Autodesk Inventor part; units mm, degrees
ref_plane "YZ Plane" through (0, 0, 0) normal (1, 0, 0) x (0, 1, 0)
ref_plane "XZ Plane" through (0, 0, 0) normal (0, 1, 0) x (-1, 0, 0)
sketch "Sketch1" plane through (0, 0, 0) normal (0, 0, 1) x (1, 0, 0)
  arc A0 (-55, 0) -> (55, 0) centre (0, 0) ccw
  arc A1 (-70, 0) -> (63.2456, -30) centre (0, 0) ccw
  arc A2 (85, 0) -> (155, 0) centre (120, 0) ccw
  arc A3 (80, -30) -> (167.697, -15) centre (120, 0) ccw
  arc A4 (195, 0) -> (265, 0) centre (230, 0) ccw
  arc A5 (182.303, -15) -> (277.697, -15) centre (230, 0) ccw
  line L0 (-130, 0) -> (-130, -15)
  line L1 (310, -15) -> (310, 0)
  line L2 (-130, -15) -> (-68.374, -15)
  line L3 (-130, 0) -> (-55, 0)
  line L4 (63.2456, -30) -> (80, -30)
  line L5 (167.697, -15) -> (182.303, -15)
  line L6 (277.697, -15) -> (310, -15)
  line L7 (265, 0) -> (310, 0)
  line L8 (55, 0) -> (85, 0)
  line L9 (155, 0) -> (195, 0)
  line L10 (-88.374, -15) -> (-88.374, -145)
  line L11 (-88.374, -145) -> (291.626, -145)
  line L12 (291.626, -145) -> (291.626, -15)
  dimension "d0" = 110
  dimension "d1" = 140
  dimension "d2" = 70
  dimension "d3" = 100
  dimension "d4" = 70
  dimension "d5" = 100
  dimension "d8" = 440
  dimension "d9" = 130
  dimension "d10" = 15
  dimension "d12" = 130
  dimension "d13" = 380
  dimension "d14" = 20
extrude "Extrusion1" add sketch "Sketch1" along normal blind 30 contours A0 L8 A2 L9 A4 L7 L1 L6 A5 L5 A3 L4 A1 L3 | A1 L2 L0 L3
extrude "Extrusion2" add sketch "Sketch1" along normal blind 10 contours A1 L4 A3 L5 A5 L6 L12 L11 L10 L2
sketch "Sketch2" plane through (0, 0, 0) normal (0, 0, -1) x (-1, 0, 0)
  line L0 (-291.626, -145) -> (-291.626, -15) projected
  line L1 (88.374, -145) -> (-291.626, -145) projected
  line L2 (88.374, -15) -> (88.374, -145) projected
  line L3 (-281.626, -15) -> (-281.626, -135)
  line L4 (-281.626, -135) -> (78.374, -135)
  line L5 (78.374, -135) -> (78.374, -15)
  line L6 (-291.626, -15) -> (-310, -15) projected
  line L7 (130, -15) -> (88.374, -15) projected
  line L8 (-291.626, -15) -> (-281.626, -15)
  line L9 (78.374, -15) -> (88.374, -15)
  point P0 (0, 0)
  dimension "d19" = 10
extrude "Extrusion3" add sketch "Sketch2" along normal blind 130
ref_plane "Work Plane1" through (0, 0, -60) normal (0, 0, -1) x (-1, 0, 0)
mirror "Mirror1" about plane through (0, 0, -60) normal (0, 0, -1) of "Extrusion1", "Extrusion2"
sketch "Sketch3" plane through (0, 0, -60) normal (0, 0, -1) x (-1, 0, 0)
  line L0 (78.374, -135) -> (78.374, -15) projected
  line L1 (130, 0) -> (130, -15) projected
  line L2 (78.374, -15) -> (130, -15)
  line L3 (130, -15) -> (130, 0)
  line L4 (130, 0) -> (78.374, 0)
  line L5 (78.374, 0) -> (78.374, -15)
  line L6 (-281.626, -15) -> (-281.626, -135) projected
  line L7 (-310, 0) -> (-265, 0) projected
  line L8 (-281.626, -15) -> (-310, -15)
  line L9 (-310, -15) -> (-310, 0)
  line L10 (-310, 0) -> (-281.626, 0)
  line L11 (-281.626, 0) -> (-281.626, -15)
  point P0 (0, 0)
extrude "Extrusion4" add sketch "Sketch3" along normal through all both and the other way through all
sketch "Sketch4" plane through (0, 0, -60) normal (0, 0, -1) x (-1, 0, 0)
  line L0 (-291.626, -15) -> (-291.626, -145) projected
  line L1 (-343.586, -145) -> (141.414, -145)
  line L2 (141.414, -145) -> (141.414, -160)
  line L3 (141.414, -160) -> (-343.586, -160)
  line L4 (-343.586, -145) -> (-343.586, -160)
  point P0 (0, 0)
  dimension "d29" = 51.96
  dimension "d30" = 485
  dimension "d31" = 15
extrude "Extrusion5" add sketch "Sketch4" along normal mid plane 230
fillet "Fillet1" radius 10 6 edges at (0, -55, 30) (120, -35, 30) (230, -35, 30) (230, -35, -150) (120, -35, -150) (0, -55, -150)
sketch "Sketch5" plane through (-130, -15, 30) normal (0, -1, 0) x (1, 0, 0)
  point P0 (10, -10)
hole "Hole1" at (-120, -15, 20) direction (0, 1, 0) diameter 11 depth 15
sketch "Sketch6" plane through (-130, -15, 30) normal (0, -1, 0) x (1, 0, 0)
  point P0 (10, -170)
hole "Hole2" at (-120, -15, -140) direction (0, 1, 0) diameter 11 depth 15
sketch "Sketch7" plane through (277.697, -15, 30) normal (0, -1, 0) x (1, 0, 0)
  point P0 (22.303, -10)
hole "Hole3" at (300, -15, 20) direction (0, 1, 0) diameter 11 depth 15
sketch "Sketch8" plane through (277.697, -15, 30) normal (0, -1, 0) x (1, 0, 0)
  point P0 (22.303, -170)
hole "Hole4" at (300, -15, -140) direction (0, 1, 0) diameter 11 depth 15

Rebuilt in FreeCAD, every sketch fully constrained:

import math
import FreeCAD as App
import Part
import Sketcher

V = App.Vector


def edges_at(feature, points):
    """Names of the edges that pass closest to the given points."""
    edges = feature.Shape.Edges
    near = lambda p: min(range(len(edges)), key=lambda i: edges[i].distToShape(Part.Vertex(*p))[0])
    return sorted({f"Edge{near(p) + 1}" for p in points})


def add_polygon(sketch, points):
    """Adds a closed chain of lines whose ends are joined by coincident constraints."""
    first, n = sketch.GeometryCount, len(points)
    for a, b in zip(points, points[1:] + points[:1]):
        sketch.addGeometry(Part.LineSegment(App.Vector(*a, 0), App.Vector(*b, 0)), False)
    for i in range(n):
        sketch.addConstraint(Sketcher.Constraint("Coincident", first + i, 2, first + (i + 1) % n, 1))

doc = App.newDocument("Part")
body = doc.addObject("PartDesign::Body", "Body")

# Sketch on XY plane
sketch1 = doc.addObject("Sketcher::SketchObject", "Sketch")
body.addObject(sketch1)
sketch1.AttachmentSupport = (doc.XY_Plane, [""])
sketch1.MapMode = "FlatFace"
sketch1.addGeometry(Part.ArcOfCircle(Part.Circle(V(0, 0, 0), V(0, 0, 1), 55), math.radians(180), math.radians(360)), False)
sketch1.addGeometry(Part.LineSegment(V(-55, 0, 0), V(-130, 0, 0)), False)
sketch1.addGeometry(Part.LineSegment(V(-130, 0, 0), V(-130, -15, 0)), False)
sketch1.addGeometry(Part.LineSegment(V(-130, -15, 0), V(-68, -15, 0)), False)
sketch1.addGeometry(Part.ArcOfCircle(Part.Circle(V(0, 0, 0), V(0, 0, 1), 70), math.radians(-168), math.radians(-25)), False)
sketch1.addGeometry(Part.LineSegment(V(63, -30, 0), V(80, -30, 0)), False)
sketch1.addGeometry(Part.ArcOfCircle(Part.Circle(V(120, 0, 0), V(0, 0, 1), 50), math.radians(-143), math.radians(-17)), False)
sketch1.addGeometry(Part.LineSegment(V(168, -15, 0), V(182, -15, 0)), False)
sketch1.addGeometry(Part.ArcOfCircle(Part.Circle(V(230, 0, 0), V(0, 0, 1), 50), math.radians(-163), math.radians(-17)), False)
sketch1.addGeometry(Part.LineSegment(V(278, -15, 0), V(310, -15, 0)), False)
sketch1.addGeometry(Part.LineSegment(V(310, -15, 0), V(310, 0, 0)), False)
sketch1.addGeometry(Part.LineSegment(V(310, 0, 0), V(265, 0, 0)), False)
sketch1.addGeometry(Part.ArcOfCircle(Part.Circle(V(230, 0, 0), V(0, 0, 1), 35), math.radians(180), math.radians(360)), False)
sketch1.addGeometry(Part.LineSegment(V(195, 0, 0), V(155, 0, 0)), False)
sketch1.addGeometry(Part.ArcOfCircle(Part.Circle(V(120, 0, 0), V(0, 0, 1), 35), math.radians(180), math.radians(360)), False)
sketch1.addGeometry(Part.LineSegment(V(85, 0, 0), V(55, 0, 0)), False)
sketch1.addConstraint(Sketcher.Constraint("Coincident", 0, 1, 1, 1))
sketch1.addConstraint(Sketcher.Constraint("Coincident", 1, 2, 2, 1))
sketch1.addConstraint(Sketcher.Constraint("Coincident", 2, 2, 3, 1))
sketch1.addConstraint(Sketcher.Constraint("Coincident", 3, 2, 4, 1))
sketch1.addConstraint(Sketcher.Constraint("Coincident", 4, 2, 5, 1))
sketch1.addConstraint(Sketcher.Constraint("Coincident", 5, 2, 6, 1))
sketch1.addConstraint(Sketcher.Constraint("Coincident", 6, 2, 7, 1))
sketch1.addConstraint(Sketcher.Constraint("Coincident", 7, 2, 8, 1))
sketch1.addConstraint(Sketcher.Constraint("Coincident", 8, 2, 9, 1))
sketch1.addConstraint(Sketcher.Constraint("Coincident", 9, 2, 10, 1))
sketch1.addConstraint(Sketcher.Constraint("Coincident", 10, 2, 11, 1))
sketch1.addConstraint(Sketcher.Constraint("Coincident", 11, 2, 12, 2))
sketch1.addConstraint(Sketcher.Constraint("Coincident", 12, 1, 13, 1))
sketch1.addConstraint(Sketcher.Constraint("Coincident", 13, 2, 14, 2))
sketch1.addConstraint(Sketcher.Constraint("Coincident", 14, 1, 15, 1))
sketch1.addConstraint(Sketcher.Constraint("Coincident", 15, 2, 0, 2))
sketch1.addConstraint(Sketcher.Constraint("Horizontal", 1))
sketch1.addConstraint(Sketcher.Constraint("Vertical", 2))
sketch1.addConstraint(Sketcher.Constraint("Horizontal", 3))
sketch1.addConstraint(Sketcher.Constraint("Horizontal", 5))
sketch1.addConstraint(Sketcher.Constraint("Horizontal", 7))
sketch1.addConstraint(Sketcher.Constraint("Horizontal", 9))
sketch1.addConstraint(Sketcher.Constraint("Vertical", 10))
sketch1.addConstraint(Sketcher.Constraint("Horizontal", 11))
sketch1.addConstraint(Sketcher.Constraint("Horizontal", 13))
sketch1.addConstraint(Sketcher.Constraint("Horizontal", 15))
sketch1.addConstraint(Sketcher.Constraint("Coincident", 0, 3, -1, 1))
sketch1.addConstraint(Sketcher.Constraint("Coincident", 4, 3, -1, 1))
sketch1.addConstraint(Sketcher.Constraint("Coincident", 12, 3, 8, 3))
sketch1.addConstraint(Sketcher.Constraint("Coincident", 14, 3, 6, 3))
sketch1.addConstraint(Sketcher.Constraint("Equal", 6, 8))
sketch1.addConstraint(Sketcher.Constraint("Equal", 12, 14))
sketch1.addConstraint(Sketcher.Constraint("PointOnObject", 6, 3, -1))
sketch1.addConstraint(Sketcher.Constraint("PointOnObject", 8, 3, -1))
sketch1.addConstraint(Sketcher.Constraint("PointOnObject", 0, 1, -1))
sketch1.addConstraint(Sketcher.Constraint("PointOnObject", 10, 2, -1))
sketch1.addConstraint(Sketcher.Constraint("PointOnObject", 12, 1, -1))
sketch1.addConstraint(Sketcher.Constraint("PointOnObject", 14, 1, -1))
sketch1.addConstraint(Sketcher.Constraint("Horizontal", 3, 2, 6, 2))
sketch1.addConstraint(Sketcher.Constraint("Horizontal", 7, 2, 8, 2))
sketch1.addConstraint(Sketcher.Constraint("Radius", 0, 55.0))
sketch1.addConstraint(Sketcher.Constraint("Radius", 4, 70.0))
sketch1.addConstraint(Sketcher.Constraint("Radius", 6, 50.0))
sketch1.addConstraint(Sketcher.Constraint("Radius", 12, 35.0))
sketch1.addConstraint(Sketcher.Constraint("DistanceY", 2, 2, 2, 1, 15.0))
sketch1.addConstraint(Sketcher.Constraint("DistanceX", 1, 2, -1, 1, 130.0))
sketch1.addConstraint(Sketcher.Constraint("DistanceX", 6, 3, 8, 3, 110.0))
sketch1.addConstraint(Sketcher.Constraint("DistanceY", 5, 2, 6, 2, 15.0))
sketch1.addConstraint(Sketcher.Constraint("DistanceX", 11, 2, 11, 1, 45.0))
sketch1.addConstraint(Sketcher.Constraint("DistanceX", 15, 2, 15, 1, 30.0))
pad1 = doc.addObject("PartDesign::Pad", "Pad")
body.addObject(pad1)
pad1.Profile = sketch1
pad1.Length = 30

# Sketch on XY plane
sketch2 = doc.addObject("Sketcher::SketchObject", "Sketch001")
body.addObject(sketch2)
sketch2.AttachmentSupport = (doc.XY_Plane, [""])
sketch2.MapMode = "FlatFace"
sketch2.addGeometry(Part.ArcOfCircle(Part.Circle(V(0, 0, 0), V(0, 0, 1), 70), math.radians(-168), math.radians(-25)), False)
sketch2.addGeometry(Part.LineSegment(V(-68, -15, 0), V(-88, -15, 0)), False)
sketch2.addGeometry(Part.LineSegment(V(-88, -15, 0), V(-88, -145, 0)), False)
sketch2.addGeometry(Part.LineSegment(V(-88, -145, 0), V(292, -145, 0)), False)
sketch2.addGeometry(Part.LineSegment(V(292, -145, 0), V(292, -15, 0)), False)
sketch2.addGeometry(Part.LineSegment(V(292, -15, 0), V(278, -15, 0)), False)
sketch2.addGeometry(Part.ArcOfCircle(Part.Circle(V(230, 0, 0), V(0, 0, 1), 50), math.radians(-163), math.radians(-17)), False)
sketch2.addGeometry(Part.LineSegment(V(182, -15, 0), V(168, -15, 0)), False)
sketch2.addGeometry(Part.ArcOfCircle(Part.Circle(V(120, 0, 0), V(0, 0, 1), 50), math.radians(-143), math.radians(-17)), False)
sketch2.addGeometry(Part.LineSegment(V(80, -30, 0), V(63, -30, 0)), False)
sketch2.addConstraint(Sketcher.Constraint("Coincident", 0, 1, 1, 1))
sketch2.addConstraint(Sketcher.Constraint("Coincident", 1, 2, 2, 1))
sketch2.addConstraint(Sketcher.Constraint("Coincident", 2, 2, 3, 1))
sketch2.addConstraint(Sketcher.Constraint("Coincident", 3, 2, 4, 1))
sketch2.addConstraint(Sketcher.Constraint("Coincident", 4, 2, 5, 1))
sketch2.addConstraint(Sketcher.Constraint("Coincident", 5, 2, 6, 2))
sketch2.addConstraint(Sketcher.Constraint("Coincident", 6, 1, 7, 1))
sketch2.addConstraint(Sketcher.Constraint("Coincident", 7, 2, 8, 2))
sketch2.addConstraint(Sketcher.Constraint("Coincident", 8, 1, 9, 1))
sketch2.addConstraint(Sketcher.Constraint("Coincident", 9, 2, 0, 2))
sketch2.addConstraint(Sketcher.Constraint("Horizontal", 1))
sketch2.addConstraint(Sketcher.Constraint("Vertical", 2))
sketch2.addConstraint(Sketcher.Constraint("Horizontal", 3))
sketch2.addConstraint(Sketcher.Constraint("Vertical", 4))
sketch2.addConstraint(Sketcher.Constraint("Horizontal", 5))
sketch2.addConstraint(Sketcher.Constraint("Horizontal", 7))
sketch2.addConstraint(Sketcher.Constraint("Horizontal", 9))
sketch2.addConstraint(Sketcher.Constraint("Coincident", 0, 3, -1, 1))
sketch2.addConstraint(Sketcher.Constraint("Equal", 6, 8))
sketch2.addConstraint(Sketcher.Constraint("PointOnObject", 6, 3, -1))
sketch2.addConstraint(Sketcher.Constraint("PointOnObject", 8, 3, -1))
sketch2.addConstraint(Sketcher.Constraint("Horizontal", 1, 2, 4, 2))
sketch2.addConstraint(Sketcher.Constraint("Horizontal", 5, 2, 6, 1))
sketch2.addConstraint(Sketcher.Constraint("Radius", 0, 70.0))
sketch2.addConstraint(Sketcher.Constraint("Radius", 6, 50.0))
sketch2.addConstraint(Sketcher.Constraint("DistanceX", 1, 2, 1, 1, 20.0))
sketch2.addConstraint(Sketcher.Constraint("DistanceX", 3, 1, 3, 2, 380.0))
sketch2.addConstraint(Sketcher.Constraint("DistanceY", 2, 2, 2, 1, 130.0))
sketch2.addConstraint(Sketcher.Constraint("DistanceY", 0, 1, -1, 1, 15.0))
sketch2.addConstraint(Sketcher.Constraint("DistanceX", 8, 3, 6, 3, 110.0))
sketch2.addConstraint(Sketcher.Constraint("DistanceY", 8, 1, 7, 2, 15.0))
sketch2.addConstraint(Sketcher.Constraint("DistanceX", -1, 1, 6, 3, 230.0))
pad2 = doc.addObject("PartDesign::Pad", "Pad001")
body.addObject(pad2)
pad2.Profile = sketch2
pad2.Length = 10

# Sketch on XY plane
sketch3 = doc.addObject("Sketcher::SketchObject", "Sketch002")
body.addObject(sketch3)
sketch3.AttachmentSupport = (doc.XY_Plane, [""])
sketch3.MapMode = "FlatFace"
add_polygon(sketch3, [(292, -15), (292, -145), (-88, -145), (-88, -15), (-78, -15), (-78, -135), (282, -135), (282, -15)])  # lines 0-7
sketch3.addConstraint(Sketcher.Constraint("Vertical", 0))
sketch3.addConstraint(Sketcher.Constraint("Horizontal", 1))
sketch3.addConstraint(Sketcher.Constraint("Vertical", 2))
sketch3.addConstraint(Sketcher.Constraint("Horizontal", 3))
sketch3.addConstraint(Sketcher.Constraint("Vertical", 4))
sketch3.addConstraint(Sketcher.Constraint("Horizontal", 5))
sketch3.addConstraint(Sketcher.Constraint("Vertical", 6))
sketch3.addConstraint(Sketcher.Constraint("Horizontal", 7))
sketch3.addConstraint(Sketcher.Constraint("Horizontal", 3, 2, 6, 2))
sketch3.addConstraint(Sketcher.Constraint("Equal", 3, 7))
sketch3.addConstraint(Sketcher.Constraint("DistanceX", 3, 1, 3, 2, 10.0))
sketch3.addConstraint(Sketcher.Constraint("DistanceY", 1, 2, 4, 2, 10.0))
sketch3.addConstraint(Sketcher.Constraint("DistanceX", 1, 2, 1, 1, 380.0))
sketch3.addConstraint(Sketcher.Constraint("DistanceY", 0, 2, 0, 1, 130.0))
sketch3.addConstraint(Sketcher.Constraint("DistanceY", 0, 2, -1, 1, 145.0))
sketch3.addConstraint(Sketcher.Constraint("DistanceX", -1, 1, 0, 2, 291.626))
pad3 = doc.addObject("PartDesign::Pad", "Pad002")
body.addObject(pad3)
pad3.Profile = sketch3
pad3.Length = 130
pad3.Reversed = True
doc.recompute()

datumplane = doc.addObject("PartDesign::Plane", "DatumPlane")
body.addObject(datumplane)
datumplane.AttachmentSupport = (doc.XY_Plane, [""])
datumplane.MapMode = "FlatFace"
datumplane.AttachmentOffset = App.Placement(V(0, 0, -60), App.Rotation())
mirrored = doc.addObject("PartDesign::Mirrored", "Mirrored")
body.addObject(mirrored)
mirrored.Originals = [pad1, pad2]
mirrored.MirrorPlane = (datumplane, [""])
body.Tip = mirrored

# Sketch on XY plane
sketch4 = doc.addObject("Sketcher::SketchObject", "Sketch003")
body.addObject(sketch4)
sketch4.AttachmentSupport = (doc.XY_Plane, [""])
sketch4.MapMode = "FlatFace"
sketch4.AttachmentOffset = App.Placement(V(0, 0, -60), App.Rotation())
add_polygon(sketch4, [(-130, -15), (-130, 0), (-78, 0), (-78, -15)])  # lines 0-3
add_polygon(sketch4, [(282, 0), (310, 0), (310, -15), (282, -15)])  # lines 4-7
sketch4.addConstraint(Sketcher.Constraint("Vertical", 0))
sketch4.addConstraint(Sketcher.Constraint("Horizontal", 1))
sketch4.addConstraint(Sketcher.Constraint("Vertical", 2))
sketch4.addConstraint(Sketcher.Constraint("Horizontal", 3))
sketch4.addConstraint(Sketcher.Constraint("Horizontal", 4))
sketch4.addConstraint(Sketcher.Constraint("Vertical", 5))
sketch4.addConstraint(Sketcher.Constraint("Horizontal", 6))
sketch4.addConstraint(Sketcher.Constraint("Vertical", 7))
sketch4.addConstraint(Sketcher.Constraint("PointOnObject", 0, 2, -1))
sketch4.addConstraint(Sketcher.Constraint("PointOnObject", 4, 2, -1))
sketch4.addConstraint(Sketcher.Constraint("Horizontal", 3, 2, 5, 2))
sketch4.addConstraint(Sketcher.Constraint("DistanceY", 0, 1, 0, 2, 15.0))
sketch4.addConstraint(Sketcher.Constraint("DistanceX", 0, 2, -1, 1, 130.0))
sketch4.addConstraint(Sketcher.Constraint("DistanceX", -1, 1, 4, 2, 310.0))
sketch4.addConstraint(Sketcher.Constraint("DistanceX", 2, 2, 6, 2, 360.0))
sketch4.addConstraint(Sketcher.Constraint("DistanceX", 1, 1, 1, 2, 51.626))
pad4 = doc.addObject("PartDesign::Pad", "Pad003")
body.addObject(pad4)
pad4.Profile = sketch4
pad4.Type = "TwoLengths"
pad4.Length = 90
pad4.Length2 = 90
pad4.Reversed = True

# Sketch on XY plane
sketch5 = doc.addObject("Sketcher::SketchObject", "Sketch004")
body.addObject(sketch5)
sketch5.AttachmentSupport = (doc.XY_Plane, [""])
sketch5.MapMode = "FlatFace"
sketch5.AttachmentOffset = App.Placement(V(0, 0, -60), App.Rotation())
add_polygon(sketch5, [(-141, -145), (344, -145), (344, -160), (-141, -160)])  # lines 0-3
sketch5.addConstraint(Sketcher.Constraint("Horizontal", 0))
sketch5.addConstraint(Sketcher.Constraint("Vertical", 1))
sketch5.addConstraint(Sketcher.Constraint("Horizontal", 2))
sketch5.addConstraint(Sketcher.Constraint("Vertical", 3))
sketch5.addConstraint(Sketcher.Constraint("DistanceX", 0, 1, 0, 2, 485.0))
sketch5.addConstraint(Sketcher.Constraint("DistanceY", 1, 2, 1, 1, 15.0))
sketch5.addConstraint(Sketcher.Constraint("DistanceY", 0, 2, -1, 1, 145.0))
sketch5.addConstraint(Sketcher.Constraint("DistanceX", -1, 1, 0, 2, 343.586))
pad5 = doc.addObject("PartDesign::Pad", "Pad004")
body.addObject(pad5)
pad5.Profile = sketch5
pad5.Length = 230
pad5.Midplane = True
doc.recompute()

fillet = doc.addObject("PartDesign::Fillet", "Fillet")
body.addObject(fillet)
fillet.Base = (pad5, edges_at(pad5, [
    (0, -55, 30),
    (120, -35, 30),
    (230, -35, 30),
    (230, -35, -150),
    (120, -35, -150),
    (0, -55, -150),
]))
fillet.Radius = 10

# Sketch on XZ plane
sketch6 = doc.addObject("Sketcher::SketchObject", "Sketch005")
body.addObject(sketch6)
sketch6.AttachmentSupport = (doc.XZ_Plane, [""])
sketch6.MapMode = "FlatFace"
sketch6.AttachmentOffset = App.Placement(V(0, 0, 15), App.Rotation())
sketch6.addGeometry(Part.Circle(V(-120, 20, 0), V(0, 0, 1), 6), False)
sketch6.addConstraint(Sketcher.Constraint("Diameter", 0, 11.0))
sketch6.addConstraint(Sketcher.Constraint("DistanceX", 0, 3, -1, 1, 120.0))
sketch6.addConstraint(Sketcher.Constraint("DistanceY", -1, 1, 0, 3, 20.0))
doc.recompute()
hole = doc.addObject("PartDesign::Hole", "Hole")
body.addObject(hole)
hole.Profile = sketch6
hole.ThreadType = "None"
hole.Diameter = 11
hole.DepthType = "Dimension"
hole.Depth = 15
hole.DrillPoint = "Flat"

# Sketch on XZ plane
sketch7 = doc.addObject("Sketcher::SketchObject", "Sketch006")
body.addObject(sketch7)
sketch7.AttachmentSupport = (doc.XZ_Plane, [""])
sketch7.MapMode = "FlatFace"
sketch7.AttachmentOffset = App.Placement(V(0, 0, 15), App.Rotation())
sketch7.addGeometry(Part.Circle(V(-120, -140, 0), V(0, 0, 1), 6), False)
sketch7.addConstraint(Sketcher.Constraint("Diameter", 0, 11.0))
sketch7.addConstraint(Sketcher.Constraint("DistanceX", 0, 3, -1, 1, 120.0))
sketch7.addConstraint(Sketcher.Constraint("DistanceY", 0, 3, -1, 1, 140.0))
doc.recompute()
hole2 = doc.addObject("PartDesign::Hole", "Hole001")
body.addObject(hole2)
hole2.Profile = sketch7
hole2.ThreadType = "None"
hole2.Diameter = 11
hole2.DepthType = "Dimension"
hole2.Depth = 15
hole2.DrillPoint = "Flat"

# Sketch on XZ plane
sketch8 = doc.addObject("Sketcher::SketchObject", "Sketch007")
body.addObject(sketch8)
sketch8.AttachmentSupport = (doc.XZ_Plane, [""])
sketch8.MapMode = "FlatFace"
sketch8.AttachmentOffset = App.Placement(V(0, 0, 15), App.Rotation())
sketch8.addGeometry(Part.Circle(V(300, 20, 0), V(0, 0, 1), 6), False)
sketch8.addConstraint(Sketcher.Constraint("Diameter", 0, 11.0))
sketch8.addConstraint(Sketcher.Constraint("DistanceX", -1, 1, 0, 3, 300.0))
sketch8.addConstraint(Sketcher.Constraint("DistanceY", -1, 1, 0, 3, 20.0))
doc.recompute()
hole3 = doc.addObject("PartDesign::Hole", "Hole002")
body.addObject(hole3)
hole3.Profile = sketch8
hole3.ThreadType = "None"
hole3.Diameter = 11
hole3.DepthType = "Dimension"
hole3.Depth = 15
hole3.DrillPoint = "Flat"

# Sketch on XZ plane
sketch9 = doc.addObject("Sketcher::SketchObject", "Sketch008")
body.addObject(sketch9)
sketch9.AttachmentSupport = (doc.XZ_Plane, [""])
sketch9.MapMode = "FlatFace"
sketch9.AttachmentOffset = App.Placement(V(0, 0, 15), App.Rotation())
sketch9.addGeometry(Part.Circle(V(300, -140, 0), V(0, 0, 1), 6), False)
sketch9.addConstraint(Sketcher.Constraint("Diameter", 0, 11.0))
sketch9.addConstraint(Sketcher.Constraint("DistanceX", -1, 1, 0, 3, 300.0))
sketch9.addConstraint(Sketcher.Constraint("DistanceY", 0, 3, -1, 1, 140.0))
doc.recompute()
hole4 = doc.addObject("PartDesign::Hole", "Hole003")
body.addObject(hole4)
hole4.Profile = sketch9
hole4.ThreadType = "None"
hole4.Diameter = 11
hole4.DepthType = "Dimension"
hole4.Depth = 15
hole4.DrillPoint = "Flat"

doc.recompute()
